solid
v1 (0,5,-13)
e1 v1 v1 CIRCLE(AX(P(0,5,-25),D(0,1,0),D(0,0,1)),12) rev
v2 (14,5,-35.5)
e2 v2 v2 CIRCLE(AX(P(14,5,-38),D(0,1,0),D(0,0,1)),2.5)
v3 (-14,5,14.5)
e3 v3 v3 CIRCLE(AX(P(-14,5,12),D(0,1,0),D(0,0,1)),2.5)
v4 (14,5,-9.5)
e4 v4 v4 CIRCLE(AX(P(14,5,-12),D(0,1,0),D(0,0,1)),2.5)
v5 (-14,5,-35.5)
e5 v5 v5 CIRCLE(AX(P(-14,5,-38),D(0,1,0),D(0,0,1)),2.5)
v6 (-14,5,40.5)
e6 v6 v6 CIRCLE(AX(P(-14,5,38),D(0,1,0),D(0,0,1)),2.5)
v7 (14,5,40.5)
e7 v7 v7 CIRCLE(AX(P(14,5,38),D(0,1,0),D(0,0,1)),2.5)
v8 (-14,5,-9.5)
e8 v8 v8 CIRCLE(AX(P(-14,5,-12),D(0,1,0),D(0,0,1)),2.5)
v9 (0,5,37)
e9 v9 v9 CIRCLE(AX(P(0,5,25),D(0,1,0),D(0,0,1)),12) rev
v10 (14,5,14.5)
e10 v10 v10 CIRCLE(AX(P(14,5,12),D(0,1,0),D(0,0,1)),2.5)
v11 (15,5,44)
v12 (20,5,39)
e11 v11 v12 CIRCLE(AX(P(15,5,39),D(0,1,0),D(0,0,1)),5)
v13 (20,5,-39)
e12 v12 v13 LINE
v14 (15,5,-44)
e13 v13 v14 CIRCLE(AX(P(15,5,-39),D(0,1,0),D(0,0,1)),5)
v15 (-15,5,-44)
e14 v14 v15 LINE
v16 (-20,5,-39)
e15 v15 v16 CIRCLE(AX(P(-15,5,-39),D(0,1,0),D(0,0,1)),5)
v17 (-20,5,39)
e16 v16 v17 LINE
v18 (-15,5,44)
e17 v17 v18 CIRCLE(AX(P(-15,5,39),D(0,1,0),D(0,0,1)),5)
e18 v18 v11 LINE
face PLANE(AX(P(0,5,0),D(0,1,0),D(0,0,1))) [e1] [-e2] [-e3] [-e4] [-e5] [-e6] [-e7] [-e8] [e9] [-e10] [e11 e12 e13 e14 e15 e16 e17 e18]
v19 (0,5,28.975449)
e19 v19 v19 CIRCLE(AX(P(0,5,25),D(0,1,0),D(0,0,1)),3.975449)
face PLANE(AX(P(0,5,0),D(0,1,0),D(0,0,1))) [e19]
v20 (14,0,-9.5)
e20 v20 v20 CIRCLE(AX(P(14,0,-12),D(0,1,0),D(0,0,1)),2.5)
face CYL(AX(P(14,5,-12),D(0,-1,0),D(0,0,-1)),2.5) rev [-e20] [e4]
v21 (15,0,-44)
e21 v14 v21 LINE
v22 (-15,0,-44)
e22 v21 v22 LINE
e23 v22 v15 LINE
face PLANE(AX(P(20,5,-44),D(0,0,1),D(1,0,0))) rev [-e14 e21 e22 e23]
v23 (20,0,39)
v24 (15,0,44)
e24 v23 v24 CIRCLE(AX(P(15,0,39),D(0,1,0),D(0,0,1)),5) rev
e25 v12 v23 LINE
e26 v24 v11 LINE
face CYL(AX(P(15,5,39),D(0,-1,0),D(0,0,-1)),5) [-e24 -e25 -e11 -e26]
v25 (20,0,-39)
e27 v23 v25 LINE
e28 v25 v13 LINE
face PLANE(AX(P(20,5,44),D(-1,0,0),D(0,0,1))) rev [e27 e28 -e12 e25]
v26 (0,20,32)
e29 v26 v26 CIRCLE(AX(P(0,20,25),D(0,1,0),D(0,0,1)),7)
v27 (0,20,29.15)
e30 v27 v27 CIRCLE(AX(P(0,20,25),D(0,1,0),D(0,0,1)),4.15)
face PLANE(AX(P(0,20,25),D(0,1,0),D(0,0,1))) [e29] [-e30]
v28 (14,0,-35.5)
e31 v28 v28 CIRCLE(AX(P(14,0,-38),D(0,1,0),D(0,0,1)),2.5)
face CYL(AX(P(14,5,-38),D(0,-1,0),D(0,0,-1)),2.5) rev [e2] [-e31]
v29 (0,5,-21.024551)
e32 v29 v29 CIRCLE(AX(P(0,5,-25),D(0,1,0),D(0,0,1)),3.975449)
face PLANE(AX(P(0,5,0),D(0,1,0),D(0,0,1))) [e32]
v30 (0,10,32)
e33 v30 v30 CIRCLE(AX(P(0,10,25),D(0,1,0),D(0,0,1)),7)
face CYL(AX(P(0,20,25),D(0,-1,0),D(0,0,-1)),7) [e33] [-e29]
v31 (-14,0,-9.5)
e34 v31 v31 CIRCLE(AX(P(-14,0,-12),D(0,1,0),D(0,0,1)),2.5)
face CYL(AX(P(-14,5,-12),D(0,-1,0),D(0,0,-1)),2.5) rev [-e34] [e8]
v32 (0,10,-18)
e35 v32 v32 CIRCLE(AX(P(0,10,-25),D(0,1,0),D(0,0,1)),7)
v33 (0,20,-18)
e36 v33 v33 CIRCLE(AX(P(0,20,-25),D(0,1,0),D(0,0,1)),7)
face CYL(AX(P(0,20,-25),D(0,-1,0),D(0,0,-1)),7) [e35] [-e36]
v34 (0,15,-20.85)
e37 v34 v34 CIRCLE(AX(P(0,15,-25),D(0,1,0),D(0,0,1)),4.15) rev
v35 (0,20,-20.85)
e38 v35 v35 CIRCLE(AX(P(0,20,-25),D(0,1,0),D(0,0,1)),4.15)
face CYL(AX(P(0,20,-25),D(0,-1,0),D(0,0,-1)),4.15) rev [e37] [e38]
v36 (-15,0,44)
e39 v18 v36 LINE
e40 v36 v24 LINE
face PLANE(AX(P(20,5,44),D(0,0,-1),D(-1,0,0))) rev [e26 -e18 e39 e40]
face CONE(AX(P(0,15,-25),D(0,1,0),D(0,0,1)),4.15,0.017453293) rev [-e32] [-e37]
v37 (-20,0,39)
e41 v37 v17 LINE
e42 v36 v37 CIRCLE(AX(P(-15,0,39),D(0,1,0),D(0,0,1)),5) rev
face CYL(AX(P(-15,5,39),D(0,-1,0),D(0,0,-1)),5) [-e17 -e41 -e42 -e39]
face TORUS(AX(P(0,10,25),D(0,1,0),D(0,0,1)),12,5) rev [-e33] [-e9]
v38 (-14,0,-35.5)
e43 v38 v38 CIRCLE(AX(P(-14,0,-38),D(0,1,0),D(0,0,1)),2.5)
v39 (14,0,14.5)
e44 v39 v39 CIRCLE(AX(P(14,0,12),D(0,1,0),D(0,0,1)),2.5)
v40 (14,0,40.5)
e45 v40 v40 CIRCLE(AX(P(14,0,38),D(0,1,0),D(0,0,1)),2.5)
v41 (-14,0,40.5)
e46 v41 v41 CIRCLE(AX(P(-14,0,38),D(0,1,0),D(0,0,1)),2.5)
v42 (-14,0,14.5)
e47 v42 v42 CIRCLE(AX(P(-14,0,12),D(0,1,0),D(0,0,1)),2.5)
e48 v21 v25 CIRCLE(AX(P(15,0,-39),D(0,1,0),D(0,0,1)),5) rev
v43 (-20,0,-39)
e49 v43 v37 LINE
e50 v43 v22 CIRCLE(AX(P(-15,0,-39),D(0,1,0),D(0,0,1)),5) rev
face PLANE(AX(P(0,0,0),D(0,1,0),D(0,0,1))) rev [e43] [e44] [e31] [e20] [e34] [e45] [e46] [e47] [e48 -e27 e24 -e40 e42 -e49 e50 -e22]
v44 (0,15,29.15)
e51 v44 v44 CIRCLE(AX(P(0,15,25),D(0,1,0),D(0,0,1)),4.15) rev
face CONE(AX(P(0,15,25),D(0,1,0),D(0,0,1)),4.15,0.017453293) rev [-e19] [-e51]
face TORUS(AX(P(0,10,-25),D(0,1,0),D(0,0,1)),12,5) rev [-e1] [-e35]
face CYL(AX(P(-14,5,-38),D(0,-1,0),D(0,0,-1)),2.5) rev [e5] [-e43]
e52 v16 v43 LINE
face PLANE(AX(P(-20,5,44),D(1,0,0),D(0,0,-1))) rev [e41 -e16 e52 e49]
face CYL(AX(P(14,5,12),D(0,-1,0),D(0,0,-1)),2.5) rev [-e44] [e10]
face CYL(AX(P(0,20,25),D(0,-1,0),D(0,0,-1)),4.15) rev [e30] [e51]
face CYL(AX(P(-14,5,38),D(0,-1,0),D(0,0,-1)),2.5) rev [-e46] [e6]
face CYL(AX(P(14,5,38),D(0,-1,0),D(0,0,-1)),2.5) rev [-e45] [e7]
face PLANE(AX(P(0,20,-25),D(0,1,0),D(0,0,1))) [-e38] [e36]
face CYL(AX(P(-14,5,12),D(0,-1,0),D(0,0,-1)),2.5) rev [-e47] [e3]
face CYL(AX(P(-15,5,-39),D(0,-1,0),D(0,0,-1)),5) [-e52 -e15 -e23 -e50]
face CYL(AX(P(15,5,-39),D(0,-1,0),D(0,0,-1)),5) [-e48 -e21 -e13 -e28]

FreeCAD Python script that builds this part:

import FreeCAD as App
import Part
import Sketcher
Q = App.Units.Quantity


def edges_at(feature, points):
    """Names of the edges that pass closest to the given points."""
    edges = feature.Shape.Edges
    near = lambda p: min(range(len(edges)), key=lambda i: edges[i].distToShape(Part.Vertex(*p))[0])
    return sorted({f"Edge{near(p) + 1}" for p in points})


def add_polygon(sketch, points):
    """Adds a closed chain of lines whose ends are joined by coincident constraints."""
    first, n = sketch.GeometryCount, len(points)
    for a, b in zip(points, points[1:] + points[:1]):
        sketch.addGeometry(Part.LineSegment(App.Vector(*a, 0), App.Vector(*b, 0)), False)
    for i in range(n):
        sketch.addConstraint(Sketcher.Constraint("Coincident", first + i, 2, first + (i + 1) % n, 1))

doc = App.newDocument("Part")
body = doc.addObject("PartDesign::Body", "Body")

# Sketch on XZ plane
sketch1 = body.newObject("Sketcher::SketchObject", "Sketch")
sketch1.AttachmentSupport = (doc.getObject("XZ_Plane"), [""])
sketch1.MapMode = "FlatFace"
add_polygon(sketch1, [(-20, -44), (-20, 44), (20, 44), (20, -44)])  # lines 0-3
sketch1.addGeometry(Part.Circle(App.Vector(-14, 38, 0), App.Vector(0, 0, 1), 2.5), False)  # 4
sketch1.addGeometry(Part.Circle(App.Vector(-14, 12, 0), App.Vector(0, 0, 1), 2.5), False)  # 5
sketch1.addGeometry(Part.Circle(App.Vector(14, 38, 0), App.Vector(0, 0, 1), 2.5), False)  # 6
sketch1.addGeometry(Part.Circle(App.Vector(14, 12, 0), App.Vector(0, 0, 1), 2.5), False)  # 7
sketch1.addGeometry(Part.Circle(App.Vector(-14, -12, 0), App.Vector(0, 0, 1), 2.5), False)  # 8
sketch1.addGeometry(Part.Circle(App.Vector(-14, -38, 0), App.Vector(0, 0, 1), 2.5), False)  # 9
sketch1.addGeometry(Part.Circle(App.Vector(14, -12, 0), App.Vector(0, 0, 1), 2.5), False)  # 10
sketch1.addGeometry(Part.Circle(App.Vector(14, -38, 0), App.Vector(0, 0, 1), 2.5), False)  # 11
sketch1.addConstraint(Sketcher.Constraint("Vertical", 0))
sketch1.addConstraint(Sketcher.Constraint("Horizontal", 1))
sketch1.addConstraint(Sketcher.Constraint("Vertical", 2))
sketch1.addConstraint(Sketcher.Constraint("Horizontal", 3))
sketch1.addConstraint(Sketcher.Constraint("Equal", 4, 5))
sketch1.addConstraint(Sketcher.Constraint("Equal", 5, 6))
sketch1.addConstraint(Sketcher.Constraint("Equal", 6, 7))
sketch1.addConstraint(Sketcher.Constraint("Equal", 7, 8))
sketch1.addConstraint(Sketcher.Constraint("Equal", 8, 9))
sketch1.addConstraint(Sketcher.Constraint("Equal", 9, 10))
sketch1.addConstraint(Sketcher.Constraint("Equal", 10, 11))
sketch1.addConstraint(Sketcher.Constraint("Symmetric", 7, 3, 8, 3, -1, 1))
sketch1.addConstraint(Sketcher.Constraint("Symmetric", 6, 3, 9, 3, -1, 1))
sketch1.addConstraint(Sketcher.Constraint("Symmetric", 5, 3, 10, 3, -1, 1))
sketch1.addConstraint(Sketcher.Constraint("Symmetric", 4, 3, 11, 3, -1, 1))
sketch1.addConstraint(Sketcher.Constraint("Symmetric", 0, 2, 2, 2, -1, 1))
sketch1.addConstraint(Sketcher.Constraint("Symmetric", 4, 3, 6, 3, -2))
sketch1.addConstraint(Sketcher.Constraint("Symmetric", 5, 3, 7, 3, -2))
sketch1.addConstraint(Sketcher.Constraint("Vertical", 4, 3, 5, 3))
sketch1.addConstraint(Sketcher.Constraint("Diameter", 4, Q("5 mm")))
sketch1.addConstraint(Sketcher.Constraint("DistanceX", 1, 1, 1, 2, Q("40 mm")))
sketch1.addConstraint(Sketcher.Constraint("DistanceY", 0, 1, 0, 2, Q("88 mm")))
sketch1.addConstraint(Sketcher.Constraint("DistanceX", 4, 3, -1, 1, Q("14 mm")))
sketch1.addConstraint(Sketcher.Constraint("DistanceY", -1, 1, 4, 3, Q("38 mm")))
sketch1.addConstraint(Sketcher.Constraint("DistanceY", -1, 1, 5, 3, Q("12 mm")))
pad1 = body.newObject("PartDesign::Pad", "Pad")
pad1.Profile = sketch1
pad1.Length = 5
pad1.Reversed = True

# Sketch on XZ plane
sketch2 = body.newObject("Sketcher::SketchObject", "Sketch001")
sketch2.AttachmentSupport = (doc.getObject("XZ_Plane"), [""])
sketch2.MapMode = "FlatFace"
sketch2.addGeometry(Part.Circle(App.Vector(0, -25, 0), App.Vector(0, 0, 1), 7), False)
sketch2.addGeometry(Part.Circle(App.Vector(0, -25, 0), App.Vector(0, 0, 1), 4.2), False)
sketch2.addGeometry(Part.Circle(App.Vector(0, 25, 0), App.Vector(0, 0, 1), 7), False)
sketch2.addGeometry(Part.Circle(App.Vector(0, 25, 0), App.Vector(0, 0, 1), 4.2), False)
sketch2.addConstraint(Sketcher.Constraint("Coincident", 1, 3, 0, 3))
sketch2.addConstraint(Sketcher.Constraint("Coincident", 3, 3, 2, 3))
sketch2.addConstraint(Sketcher.Constraint("Equal", 0, 2))
sketch2.addConstraint(Sketcher.Constraint("Equal", 1, 3))
sketch2.addConstraint(Sketcher.Constraint("Symmetric", 0, 3, 2, 3, -1, 1))
sketch2.addConstraint(Sketcher.Constraint("PointOnObject", 0, 3, -2))
sketch2.addConstraint(Sketcher.Constraint("Diameter", 0, Q("14 mm")))
sketch2.addConstraint(Sketcher.Constraint("Diameter", 1, Q("8.3 mm")))
sketch2.addConstraint(Sketcher.Constraint("DistanceY", 0, 3, -1, 1, Q("25 mm")))
pad2 = body.newObject("PartDesign::Pad", "Pad001")
pad2.Profile = sketch2
pad2.Length = 20
pad2.Reversed = True
doc.recompute()

chamfer = body.newObject("PartDesign::Chamfer", "Chamfer")
chamfer.Base = (pad2, edges_at(pad2, [(-4.15, 5, 25)]))
chamfer.ChamferType = "Two distances"
chamfer.Size = 10
chamfer.Size2 = 0.174551
doc.recompute()

chamfer2 = body.newObject("PartDesign::Chamfer", "Chamfer001")
chamfer2.Base = (chamfer, edges_at(chamfer, [(-4.15, 5, -25)]))
chamfer2.ChamferType = "Two distances"
chamfer2.Size = 10
chamfer2.Size2 = 0.174551
doc.recompute()

fillet = body.newObject("PartDesign::Fillet", "Fillet")
fillet.Base = (chamfer2, edges_at(chamfer2, [
    (-7, 5, 25),
    (-7, 5, -25),
    (-20, 2.5, -44),
    (20, 2.5, -44),
    (20, 2.5, 44),
    (-20, 2.5, 44),
]))
fillet.Radius = 5

doc.recompute()
